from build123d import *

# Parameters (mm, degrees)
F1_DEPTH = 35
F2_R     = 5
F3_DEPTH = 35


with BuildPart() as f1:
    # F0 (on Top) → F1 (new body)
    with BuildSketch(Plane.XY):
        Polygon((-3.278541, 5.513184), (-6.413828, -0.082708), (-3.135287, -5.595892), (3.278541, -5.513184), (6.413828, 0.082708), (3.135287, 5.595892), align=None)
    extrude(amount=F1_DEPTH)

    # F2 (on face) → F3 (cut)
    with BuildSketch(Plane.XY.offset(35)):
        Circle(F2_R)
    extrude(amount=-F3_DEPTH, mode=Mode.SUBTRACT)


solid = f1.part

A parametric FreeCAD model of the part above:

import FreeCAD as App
import Part
import Sketcher
from FreeCAD import Vector
Q = App.Units.Quantity


def add_polygon(sketch, points):
    """Adds a closed chain of lines whose ends are joined by coincident constraints."""
    first, n = sketch.GeometryCount, len(points)
    for a, b in zip(points, points[1:] + points[:1]):
        sketch.addGeometry(Part.LineSegment(App.Vector(*a, 0), App.Vector(*b, 0)), False)
    for i in range(n):
        sketch.addConstraint(Sketcher.Constraint("Coincident", first + i, 2, first + (i + 1) % n, 1))

doc = App.newDocument("Part")
body = doc.addObject("PartDesign::Body", "Body")

# Sketch on XY plane
sketch1 = body.newObject("Sketcher::SketchObject", "Sketch")
sketch1.AttachmentSupport = (doc.getObject("XY_Plane"), [""])
sketch1.MapMode = "FlatFace"
add_polygon(sketch1, [(-3, 6), (-6, 0), (-3, -6), (3, -6), (6, 0), (3, 6)])  # lines 0-5
sketch1.addConstraint([
    Sketcher.Constraint("Symmetric", 0, 2, 3, 2, -1, 1),
    Sketcher.Constraint("Symmetric", 1, 2, 4, 2, -1, 1),
    Sketcher.Constraint("Symmetric", 2, 2, 5, 2, -1, 1),
    Sketcher.Constraint("Equal", 0, 1),
    Sketcher.Constraint("Equal", 1, 2),
    Sketcher.Constraint("DistanceY", 1, 2, 3, 2, Q("5.6786 mm")),
    Sketcher.Constraint("Distance", 0, Q("6.414361 mm")),
    Sketcher.Constraint("DistanceX", -1, 1, 2, 2, Q("3.278541 mm")),
    Sketcher.Constraint("DistanceX", 0, 2, 1, 2, Q("3.278541 mm")),
])
pad1 = body.newObject("PartDesign::Pad", "Pad")
pad1.Profile = sketch1
pad1.Length = 35

# Sketch on XY plane
sketch2 = body.newObject("Sketcher::SketchObject", "Sketch001")
sketch2.AttachmentSupport = (doc.getObject("XY_Plane"), [""])
sketch2.MapMode = "FlatFace"
sketch2.AttachmentOffset = App.Placement(Vector(0, 0, 35), App.Rotation())
sketch2.addGeometry(Part.Circle(Vector(0, 0, 0), Vector(0, 0, 1), 5), False)
sketch2.addConstraint([
    Sketcher.Constraint("Coincident", 0, 3, -1, 1),
    Sketcher.Constraint("Diameter", 0, Q("10 mm")),
])
pocket1 = body.newObject("PartDesign::Pocket", "Pocket")
pocket1.Profile = sketch2
pocket1.Length = 35

doc.recompute()
